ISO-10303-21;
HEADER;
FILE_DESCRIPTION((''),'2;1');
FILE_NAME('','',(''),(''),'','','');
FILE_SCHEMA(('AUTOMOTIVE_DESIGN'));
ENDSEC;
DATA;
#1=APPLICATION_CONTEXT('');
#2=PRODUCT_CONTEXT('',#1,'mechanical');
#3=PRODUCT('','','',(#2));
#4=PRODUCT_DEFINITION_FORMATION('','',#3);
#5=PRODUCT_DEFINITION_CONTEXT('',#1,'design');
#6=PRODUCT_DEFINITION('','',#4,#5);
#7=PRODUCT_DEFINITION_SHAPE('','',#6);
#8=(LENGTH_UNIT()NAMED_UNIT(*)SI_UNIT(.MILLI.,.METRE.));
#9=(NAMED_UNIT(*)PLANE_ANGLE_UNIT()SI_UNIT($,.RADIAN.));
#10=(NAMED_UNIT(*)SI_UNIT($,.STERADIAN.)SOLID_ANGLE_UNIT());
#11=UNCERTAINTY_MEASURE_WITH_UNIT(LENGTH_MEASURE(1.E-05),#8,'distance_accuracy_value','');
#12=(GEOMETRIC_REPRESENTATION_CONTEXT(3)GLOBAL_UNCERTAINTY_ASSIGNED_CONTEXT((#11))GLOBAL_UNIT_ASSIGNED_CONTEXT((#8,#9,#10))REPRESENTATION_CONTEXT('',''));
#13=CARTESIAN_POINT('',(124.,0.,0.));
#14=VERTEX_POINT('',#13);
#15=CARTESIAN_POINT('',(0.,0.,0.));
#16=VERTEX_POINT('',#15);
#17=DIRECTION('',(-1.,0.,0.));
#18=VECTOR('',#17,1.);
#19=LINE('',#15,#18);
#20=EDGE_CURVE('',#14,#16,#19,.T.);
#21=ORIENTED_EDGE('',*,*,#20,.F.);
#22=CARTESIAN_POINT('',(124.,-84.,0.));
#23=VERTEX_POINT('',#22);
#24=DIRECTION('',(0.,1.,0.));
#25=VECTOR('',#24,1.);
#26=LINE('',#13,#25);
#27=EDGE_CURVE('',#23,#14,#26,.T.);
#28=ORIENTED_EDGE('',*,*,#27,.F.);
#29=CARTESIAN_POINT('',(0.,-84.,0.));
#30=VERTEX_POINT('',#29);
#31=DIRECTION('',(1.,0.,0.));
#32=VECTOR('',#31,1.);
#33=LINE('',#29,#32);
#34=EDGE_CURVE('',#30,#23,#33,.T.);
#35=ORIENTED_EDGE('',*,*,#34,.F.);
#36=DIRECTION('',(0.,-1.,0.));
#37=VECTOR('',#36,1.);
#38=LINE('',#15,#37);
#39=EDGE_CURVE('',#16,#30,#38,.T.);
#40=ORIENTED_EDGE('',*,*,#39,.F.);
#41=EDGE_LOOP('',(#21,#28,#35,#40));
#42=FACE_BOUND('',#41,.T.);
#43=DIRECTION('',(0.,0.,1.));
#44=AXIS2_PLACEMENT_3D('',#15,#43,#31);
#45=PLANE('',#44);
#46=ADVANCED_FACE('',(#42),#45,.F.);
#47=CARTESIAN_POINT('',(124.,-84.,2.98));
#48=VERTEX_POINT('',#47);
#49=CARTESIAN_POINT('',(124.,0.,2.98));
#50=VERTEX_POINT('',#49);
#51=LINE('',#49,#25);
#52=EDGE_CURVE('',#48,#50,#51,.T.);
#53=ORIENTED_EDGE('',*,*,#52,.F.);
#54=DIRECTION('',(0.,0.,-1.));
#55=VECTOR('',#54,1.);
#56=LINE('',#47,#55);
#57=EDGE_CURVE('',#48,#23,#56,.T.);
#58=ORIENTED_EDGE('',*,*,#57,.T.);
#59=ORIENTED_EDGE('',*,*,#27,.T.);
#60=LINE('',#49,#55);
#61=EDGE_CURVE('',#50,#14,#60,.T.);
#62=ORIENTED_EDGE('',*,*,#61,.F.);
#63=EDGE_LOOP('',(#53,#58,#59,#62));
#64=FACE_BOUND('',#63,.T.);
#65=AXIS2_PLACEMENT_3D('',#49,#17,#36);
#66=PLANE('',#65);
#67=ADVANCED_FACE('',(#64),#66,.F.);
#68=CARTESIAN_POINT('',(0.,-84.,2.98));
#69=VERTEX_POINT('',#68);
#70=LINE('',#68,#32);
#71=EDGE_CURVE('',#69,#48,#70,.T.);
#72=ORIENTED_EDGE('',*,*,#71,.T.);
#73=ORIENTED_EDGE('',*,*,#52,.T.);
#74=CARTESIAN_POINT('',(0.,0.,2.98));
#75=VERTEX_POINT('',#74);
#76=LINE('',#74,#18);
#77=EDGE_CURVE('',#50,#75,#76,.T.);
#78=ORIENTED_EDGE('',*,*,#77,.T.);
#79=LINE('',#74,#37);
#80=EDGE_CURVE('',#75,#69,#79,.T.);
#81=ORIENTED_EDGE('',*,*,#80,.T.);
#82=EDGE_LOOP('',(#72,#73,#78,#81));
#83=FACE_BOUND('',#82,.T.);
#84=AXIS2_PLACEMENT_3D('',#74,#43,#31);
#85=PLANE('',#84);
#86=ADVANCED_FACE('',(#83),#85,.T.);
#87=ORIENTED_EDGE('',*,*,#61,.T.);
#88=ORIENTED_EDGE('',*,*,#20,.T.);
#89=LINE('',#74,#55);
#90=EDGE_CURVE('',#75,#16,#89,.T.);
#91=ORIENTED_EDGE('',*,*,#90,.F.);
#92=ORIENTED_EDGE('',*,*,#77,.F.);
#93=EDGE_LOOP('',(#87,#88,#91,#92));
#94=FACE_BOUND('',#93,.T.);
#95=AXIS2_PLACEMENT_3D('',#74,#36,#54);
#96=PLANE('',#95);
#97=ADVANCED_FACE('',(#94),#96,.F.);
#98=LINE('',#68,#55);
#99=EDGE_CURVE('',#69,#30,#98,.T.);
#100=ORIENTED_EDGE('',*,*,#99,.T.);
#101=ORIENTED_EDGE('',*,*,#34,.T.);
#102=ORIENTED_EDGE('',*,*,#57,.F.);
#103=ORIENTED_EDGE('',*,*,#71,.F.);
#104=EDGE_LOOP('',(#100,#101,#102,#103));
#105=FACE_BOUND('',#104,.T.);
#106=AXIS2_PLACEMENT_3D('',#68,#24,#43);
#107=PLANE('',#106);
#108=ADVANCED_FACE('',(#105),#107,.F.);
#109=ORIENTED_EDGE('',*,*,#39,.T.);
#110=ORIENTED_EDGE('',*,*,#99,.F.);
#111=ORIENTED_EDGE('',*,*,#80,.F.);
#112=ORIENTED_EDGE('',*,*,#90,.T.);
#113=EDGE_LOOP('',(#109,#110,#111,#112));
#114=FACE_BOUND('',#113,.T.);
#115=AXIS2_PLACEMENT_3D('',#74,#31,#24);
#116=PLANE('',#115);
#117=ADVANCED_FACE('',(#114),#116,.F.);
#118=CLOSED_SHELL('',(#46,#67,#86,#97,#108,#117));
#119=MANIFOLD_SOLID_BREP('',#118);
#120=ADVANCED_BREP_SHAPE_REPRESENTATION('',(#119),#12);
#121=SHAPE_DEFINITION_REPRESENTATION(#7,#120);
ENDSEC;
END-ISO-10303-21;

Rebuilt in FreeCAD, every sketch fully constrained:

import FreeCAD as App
import Part
import Sketcher
from FreeCAD import Vector
Q = App.Units.Quantity

doc = App.newDocument("Part")
body = doc.addObject("PartDesign::Body", "Body")

sketch1 = body.newObject("Sketcher::SketchObject", "Sketch")
sketch1.AttachmentSupport = (doc.getObject("XY_Plane"), [""])
sketch1.MapMode = "FlatFace"
sketch1.addGeometry([
    Part.LineSegment(Vector(0, 0, 0), Vector(0, -84, 0)),
    Part.LineSegment(Vector(0, -84, 0), Vector(124, -84, 0)),
    Part.LineSegment(Vector(124, -84, 0), Vector(124, 0, 0)),
    Part.LineSegment(Vector(124, 0, 0), Vector(0, 0, 0)),
], False)
sketch1.addConstraint([
    Sketcher.Constraint("Coincident", 0, 2, 1, 1),
    Sketcher.Constraint("Coincident", 1, 2, 2, 1),
    Sketcher.Constraint("Coincident", 2, 2, 3, 1),
    Sketcher.Constraint("Coincident", 3, 2, 0, 1),
    Sketcher.Constraint("Vertical", 0),
    Sketcher.Constraint("Horizontal", 1),
    Sketcher.Constraint("Vertical", 2),
    Sketcher.Constraint("Horizontal", 3),
    Sketcher.Constraint("Coincident", 3, 2, -1, 1),
    Sketcher.Constraint("DistanceX", 1, 1, 1, 2, Q("124 mm")),
    Sketcher.Constraint("DistanceY", 0, 2, 0, 1, Q("84 mm")),
])
pad1 = body.newObject("PartDesign::Pad", "Pad")
pad1.Profile = sketch1
pad1.Length = 2.98

doc.recompute()
